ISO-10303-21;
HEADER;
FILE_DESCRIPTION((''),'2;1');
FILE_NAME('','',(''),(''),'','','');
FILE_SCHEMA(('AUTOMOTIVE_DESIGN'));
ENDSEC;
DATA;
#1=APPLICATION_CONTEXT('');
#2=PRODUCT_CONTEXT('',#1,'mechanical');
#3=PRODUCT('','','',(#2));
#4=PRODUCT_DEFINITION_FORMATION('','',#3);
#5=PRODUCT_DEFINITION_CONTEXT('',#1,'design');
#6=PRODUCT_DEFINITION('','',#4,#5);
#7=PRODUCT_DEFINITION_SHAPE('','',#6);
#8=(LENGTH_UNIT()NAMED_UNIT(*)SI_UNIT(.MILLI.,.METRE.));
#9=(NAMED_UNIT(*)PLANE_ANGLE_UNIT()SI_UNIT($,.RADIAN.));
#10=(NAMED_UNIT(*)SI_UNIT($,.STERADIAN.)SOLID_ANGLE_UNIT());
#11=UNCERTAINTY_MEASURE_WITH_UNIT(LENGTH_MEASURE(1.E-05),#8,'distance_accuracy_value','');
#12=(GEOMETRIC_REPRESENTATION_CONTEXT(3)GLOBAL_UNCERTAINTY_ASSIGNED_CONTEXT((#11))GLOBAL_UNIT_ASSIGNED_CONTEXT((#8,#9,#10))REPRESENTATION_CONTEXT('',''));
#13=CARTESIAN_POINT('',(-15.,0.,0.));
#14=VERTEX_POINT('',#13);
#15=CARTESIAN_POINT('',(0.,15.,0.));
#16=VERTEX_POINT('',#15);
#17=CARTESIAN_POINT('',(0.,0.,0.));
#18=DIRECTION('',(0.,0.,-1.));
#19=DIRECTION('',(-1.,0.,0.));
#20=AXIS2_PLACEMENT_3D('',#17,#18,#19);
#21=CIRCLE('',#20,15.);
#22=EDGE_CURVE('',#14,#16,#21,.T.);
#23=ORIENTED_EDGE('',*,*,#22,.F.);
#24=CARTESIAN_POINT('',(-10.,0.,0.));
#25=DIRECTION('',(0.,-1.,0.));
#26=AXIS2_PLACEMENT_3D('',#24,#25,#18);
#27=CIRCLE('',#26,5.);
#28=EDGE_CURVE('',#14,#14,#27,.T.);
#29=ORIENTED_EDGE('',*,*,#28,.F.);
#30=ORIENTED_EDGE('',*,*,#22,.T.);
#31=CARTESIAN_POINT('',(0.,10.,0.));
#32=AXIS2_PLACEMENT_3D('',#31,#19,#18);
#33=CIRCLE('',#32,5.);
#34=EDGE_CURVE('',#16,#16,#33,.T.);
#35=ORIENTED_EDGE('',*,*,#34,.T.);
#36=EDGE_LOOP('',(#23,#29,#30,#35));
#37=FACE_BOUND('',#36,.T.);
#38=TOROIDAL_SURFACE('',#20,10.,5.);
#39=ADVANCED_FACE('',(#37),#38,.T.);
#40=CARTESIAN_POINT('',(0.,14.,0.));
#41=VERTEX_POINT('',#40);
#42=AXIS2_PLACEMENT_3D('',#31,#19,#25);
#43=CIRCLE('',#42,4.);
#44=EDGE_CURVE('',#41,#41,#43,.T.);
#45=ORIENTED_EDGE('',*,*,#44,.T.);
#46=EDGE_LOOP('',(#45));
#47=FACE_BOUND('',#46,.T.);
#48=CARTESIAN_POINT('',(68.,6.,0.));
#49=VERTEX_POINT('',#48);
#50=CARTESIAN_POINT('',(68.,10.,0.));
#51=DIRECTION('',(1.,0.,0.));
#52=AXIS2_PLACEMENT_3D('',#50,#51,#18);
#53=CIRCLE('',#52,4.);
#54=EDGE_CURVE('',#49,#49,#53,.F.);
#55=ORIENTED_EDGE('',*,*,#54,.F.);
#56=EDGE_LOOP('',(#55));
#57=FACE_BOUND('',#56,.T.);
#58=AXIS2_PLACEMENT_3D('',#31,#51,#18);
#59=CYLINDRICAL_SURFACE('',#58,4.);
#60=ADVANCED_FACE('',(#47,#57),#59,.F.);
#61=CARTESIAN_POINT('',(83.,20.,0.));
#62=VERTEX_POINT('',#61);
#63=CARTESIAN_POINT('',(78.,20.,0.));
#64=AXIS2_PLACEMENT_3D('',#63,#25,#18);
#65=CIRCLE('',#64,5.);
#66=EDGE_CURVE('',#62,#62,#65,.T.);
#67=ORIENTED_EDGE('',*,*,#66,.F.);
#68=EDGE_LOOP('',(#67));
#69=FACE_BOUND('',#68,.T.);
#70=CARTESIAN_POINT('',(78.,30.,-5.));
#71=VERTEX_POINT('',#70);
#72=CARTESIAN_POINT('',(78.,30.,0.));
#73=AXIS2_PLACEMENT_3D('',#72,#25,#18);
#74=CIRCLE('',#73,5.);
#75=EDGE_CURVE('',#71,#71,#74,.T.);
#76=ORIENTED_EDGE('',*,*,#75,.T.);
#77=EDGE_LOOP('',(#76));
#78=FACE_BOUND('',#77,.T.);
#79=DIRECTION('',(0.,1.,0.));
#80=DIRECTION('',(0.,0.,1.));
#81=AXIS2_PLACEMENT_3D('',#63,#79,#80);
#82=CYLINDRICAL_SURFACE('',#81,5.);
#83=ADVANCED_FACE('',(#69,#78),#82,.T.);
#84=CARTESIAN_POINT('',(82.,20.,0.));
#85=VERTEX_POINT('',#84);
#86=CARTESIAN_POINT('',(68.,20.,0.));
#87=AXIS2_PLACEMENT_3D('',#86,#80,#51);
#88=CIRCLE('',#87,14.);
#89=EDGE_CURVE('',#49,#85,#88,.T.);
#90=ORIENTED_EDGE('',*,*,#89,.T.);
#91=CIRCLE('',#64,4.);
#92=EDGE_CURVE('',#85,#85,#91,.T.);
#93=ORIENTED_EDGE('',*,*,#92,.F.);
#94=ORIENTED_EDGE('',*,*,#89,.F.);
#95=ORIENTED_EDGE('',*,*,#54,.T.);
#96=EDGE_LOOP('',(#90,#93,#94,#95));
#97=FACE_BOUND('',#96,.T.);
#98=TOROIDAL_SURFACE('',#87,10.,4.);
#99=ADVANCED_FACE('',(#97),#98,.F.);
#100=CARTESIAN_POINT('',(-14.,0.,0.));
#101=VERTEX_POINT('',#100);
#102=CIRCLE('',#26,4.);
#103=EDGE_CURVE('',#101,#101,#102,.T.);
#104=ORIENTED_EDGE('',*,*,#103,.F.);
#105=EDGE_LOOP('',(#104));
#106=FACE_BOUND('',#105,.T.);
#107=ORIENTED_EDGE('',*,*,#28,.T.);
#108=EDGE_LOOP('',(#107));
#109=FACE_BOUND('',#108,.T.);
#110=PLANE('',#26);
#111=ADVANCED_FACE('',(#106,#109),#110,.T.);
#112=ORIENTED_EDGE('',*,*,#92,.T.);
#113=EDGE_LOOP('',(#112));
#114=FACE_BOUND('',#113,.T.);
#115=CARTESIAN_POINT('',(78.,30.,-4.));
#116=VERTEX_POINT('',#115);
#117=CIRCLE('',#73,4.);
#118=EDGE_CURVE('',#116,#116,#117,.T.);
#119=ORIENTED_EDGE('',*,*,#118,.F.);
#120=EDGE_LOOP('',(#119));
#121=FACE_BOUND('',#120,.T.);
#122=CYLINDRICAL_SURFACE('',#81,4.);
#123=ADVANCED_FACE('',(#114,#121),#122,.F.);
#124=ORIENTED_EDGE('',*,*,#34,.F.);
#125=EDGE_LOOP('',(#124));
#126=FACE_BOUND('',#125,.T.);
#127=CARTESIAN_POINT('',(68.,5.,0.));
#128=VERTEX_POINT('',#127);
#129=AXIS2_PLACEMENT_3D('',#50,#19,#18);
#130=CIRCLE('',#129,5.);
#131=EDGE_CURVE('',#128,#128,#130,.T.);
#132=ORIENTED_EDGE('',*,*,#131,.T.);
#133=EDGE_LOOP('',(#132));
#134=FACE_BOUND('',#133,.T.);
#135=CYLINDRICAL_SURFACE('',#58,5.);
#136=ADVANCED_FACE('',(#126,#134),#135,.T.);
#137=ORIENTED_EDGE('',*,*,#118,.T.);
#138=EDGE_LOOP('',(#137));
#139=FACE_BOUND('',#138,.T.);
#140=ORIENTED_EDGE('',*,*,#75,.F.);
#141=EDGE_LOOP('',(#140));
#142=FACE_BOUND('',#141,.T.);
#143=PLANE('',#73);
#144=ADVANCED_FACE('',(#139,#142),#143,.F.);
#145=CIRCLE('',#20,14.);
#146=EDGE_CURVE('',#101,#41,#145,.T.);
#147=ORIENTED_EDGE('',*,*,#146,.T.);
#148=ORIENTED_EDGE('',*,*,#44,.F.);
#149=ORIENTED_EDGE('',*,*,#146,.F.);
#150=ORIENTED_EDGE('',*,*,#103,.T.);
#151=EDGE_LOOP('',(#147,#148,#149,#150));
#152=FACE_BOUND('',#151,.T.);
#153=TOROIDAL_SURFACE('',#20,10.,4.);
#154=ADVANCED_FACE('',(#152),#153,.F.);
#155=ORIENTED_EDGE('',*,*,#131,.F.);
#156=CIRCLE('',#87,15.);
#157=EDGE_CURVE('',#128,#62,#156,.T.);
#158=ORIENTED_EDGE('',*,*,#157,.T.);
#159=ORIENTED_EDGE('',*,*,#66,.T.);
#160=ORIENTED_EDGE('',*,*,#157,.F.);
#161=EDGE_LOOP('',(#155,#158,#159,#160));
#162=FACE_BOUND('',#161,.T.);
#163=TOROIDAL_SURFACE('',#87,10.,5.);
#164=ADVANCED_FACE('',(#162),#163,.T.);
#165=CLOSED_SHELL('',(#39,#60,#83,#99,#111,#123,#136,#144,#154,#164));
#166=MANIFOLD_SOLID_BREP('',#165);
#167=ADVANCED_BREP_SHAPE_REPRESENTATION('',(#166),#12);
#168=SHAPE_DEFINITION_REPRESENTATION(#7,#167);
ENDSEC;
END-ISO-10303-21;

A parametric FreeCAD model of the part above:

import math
import FreeCAD as App
import Part
import Sketcher

V = App.Vector
Q = App.Units.Quantity

doc = App.newDocument("Part")
body = doc.addObject("PartDesign::Body", "Body")

sketch1 = body.newObject("Sketcher::SketchObject", "Sketch")
sketch1.AttachmentSupport = (doc.getObject("XZ_Plane"), [""])
sketch1.MapMode = "FlatFace"
sketch1.AttachmentOffset = App.Placement(V(0, 0, -30), App.Rotation())
sketch1.addGeometry([
    Part.Circle(V(78, 0, 0), V(0, 0, 1), 5),
    Part.Circle(V(78, 0, 0), V(0, 0, 1), 4),
], False)
sketch1.addConstraint([
    Sketcher.Constraint("Coincident", 1, 3, 0, 3),
    Sketcher.Constraint("PointOnObject", 0, 3, -1),
    Sketcher.Constraint("Diameter", 0, Q("10 mm")),
    Sketcher.Constraint("Diameter", 1, Q("8 mm")),
    Sketcher.Constraint("DistanceX", -1, 1, 0, 3, Q("78 mm")),
])

sketch2 = body.newObject("Sketcher::SketchObject", "Sketch001")
sketch2.AttachmentSupport = (doc.getObject("XY_Plane"), [""])
sketch2.MapMode = "FlatFace"
sketch2.addGeometry([
    Part.LineSegment(V(78, 30, 0), V(78, 20, 0)),
    Part.ArcOfCircle(Part.Circle(V(68, 20, 0), V(0, 0, 1), 10), math.radians(-90), math.radians(0)),
    Part.LineSegment(V(68, 10, 0), V(0, 10, 0)),
    Part.ArcOfCircle(Part.Circle(V(0, 0, 0), V(0, 0, 1), 10), math.radians(90), math.radians(180)),
], False)
sketch2.addConstraint([
    Sketcher.Constraint("Tangent", 0, 2, 1, 2),
    Sketcher.Constraint("Tangent", 1, 1, 2, 1),
    Sketcher.Constraint("Tangent", 2, 2, 3, 1),
    Sketcher.Constraint("Vertical", 0),
    Sketcher.Constraint("Horizontal", 2),
    Sketcher.Constraint("Coincident", 3, 3, -1, 1),
    Sketcher.Constraint("Equal", 1, 3),
    Sketcher.Constraint("PointOnObject", 3, 2, -1),
    Sketcher.Constraint("Radius", 1, Q("10 mm")),
    Sketcher.Constraint("DistanceX", 2, 2, 2, 1, Q("68 mm")),
    Sketcher.Constraint("DistanceY", 0, 2, 0, 1, Q("10 mm")),
])
doc.recompute()

additivepipe = body.newObject("PartDesign::AdditivePipe", "AdditivePipe")
additivepipe.Profile = sketch1
additivepipe.Spine = (sketch2, ["Edge1", "Edge2", "Edge3", "Edge4"])

doc.recompute()
